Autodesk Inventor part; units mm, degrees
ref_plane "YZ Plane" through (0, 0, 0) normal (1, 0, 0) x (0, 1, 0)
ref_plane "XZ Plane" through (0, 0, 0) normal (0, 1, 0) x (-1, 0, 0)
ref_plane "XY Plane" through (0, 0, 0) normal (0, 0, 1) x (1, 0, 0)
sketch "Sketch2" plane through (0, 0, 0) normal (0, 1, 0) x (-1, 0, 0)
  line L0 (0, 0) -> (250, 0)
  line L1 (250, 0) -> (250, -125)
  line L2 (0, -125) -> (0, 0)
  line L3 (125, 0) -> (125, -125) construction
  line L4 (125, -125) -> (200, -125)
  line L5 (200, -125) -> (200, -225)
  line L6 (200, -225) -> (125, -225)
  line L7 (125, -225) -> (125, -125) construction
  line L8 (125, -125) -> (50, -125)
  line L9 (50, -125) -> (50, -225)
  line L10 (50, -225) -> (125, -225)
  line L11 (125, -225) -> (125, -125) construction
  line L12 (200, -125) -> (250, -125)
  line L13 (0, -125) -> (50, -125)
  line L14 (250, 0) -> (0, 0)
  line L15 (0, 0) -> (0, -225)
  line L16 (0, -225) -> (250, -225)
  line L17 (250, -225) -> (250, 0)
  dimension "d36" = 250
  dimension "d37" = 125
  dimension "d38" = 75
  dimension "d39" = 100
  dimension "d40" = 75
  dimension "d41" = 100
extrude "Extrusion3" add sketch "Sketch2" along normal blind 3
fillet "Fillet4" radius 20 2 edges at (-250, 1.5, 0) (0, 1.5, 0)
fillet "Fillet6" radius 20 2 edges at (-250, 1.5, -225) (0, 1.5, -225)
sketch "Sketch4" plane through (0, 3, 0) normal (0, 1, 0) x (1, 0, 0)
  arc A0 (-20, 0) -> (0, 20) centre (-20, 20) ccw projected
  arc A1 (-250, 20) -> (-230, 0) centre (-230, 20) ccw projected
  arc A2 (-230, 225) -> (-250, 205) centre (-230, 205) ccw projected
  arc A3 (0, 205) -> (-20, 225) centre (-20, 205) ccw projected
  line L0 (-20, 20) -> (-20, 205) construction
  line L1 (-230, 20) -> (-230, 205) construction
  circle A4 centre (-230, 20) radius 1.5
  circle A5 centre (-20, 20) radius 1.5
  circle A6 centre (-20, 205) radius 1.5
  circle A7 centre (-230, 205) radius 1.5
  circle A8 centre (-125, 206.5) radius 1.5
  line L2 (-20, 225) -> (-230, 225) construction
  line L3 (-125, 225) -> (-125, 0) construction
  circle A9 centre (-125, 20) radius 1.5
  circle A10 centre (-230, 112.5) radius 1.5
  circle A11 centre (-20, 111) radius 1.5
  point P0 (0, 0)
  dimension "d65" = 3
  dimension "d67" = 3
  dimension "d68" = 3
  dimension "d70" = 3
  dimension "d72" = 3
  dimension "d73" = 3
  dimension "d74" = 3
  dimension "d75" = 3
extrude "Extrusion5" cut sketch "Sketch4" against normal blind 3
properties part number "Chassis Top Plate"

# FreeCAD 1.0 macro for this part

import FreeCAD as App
import Part
import Sketcher


def edges_at(feature, points):
    """Names of the edges that pass closest to the given points."""
    edges = feature.Shape.Edges
    near = lambda p: min(range(len(edges)), key=lambda i: edges[i].distToShape(Part.Vertex(*p))[0])
    return sorted({f"Edge{near(p) + 1}" for p in points})

doc = App.newDocument("Part")
params = doc.addObject("Spreadsheet::Sheet", "Params")
for row, (alias, value) in enumerate([
    ("sketch1_width", "250 mm"),
    ("sketch1_height", "225 mm"),
    ("pad1_length", "3 mm"),
    ("fillet_radius", "20 mm"),
    ("fillet2_radius", "20 mm"),
    ("sketch2_diameter", "3 mm"),
    ("pocket1_length", "3 mm"),
], start=1):
    params.set(f"A{row}", alias)
    params.set(f"B{row}", "=" + value)
    params.setAlias(f"B{row}", alias)

body = doc.addObject("PartDesign::Body", "Body")

sketch1 = doc.addObject("Sketcher::SketchObject", "Sketch")
body.addObject(sketch1)
sketch1.AttachmentSupport = (doc.XZ_Plane, [""])
sketch1.MapMode = "FlatFace"
sketch1.addGeometry(Part.LineSegment(App.Vector(-250, 0, 0), App.Vector(0, 0, 0)), False)
sketch1.addGeometry(Part.LineSegment(App.Vector(0, 0, 0), App.Vector(0, -225, 0)), False)
sketch1.addGeometry(Part.LineSegment(App.Vector(0, -225, 0), App.Vector(-250, -225, 0)), False)
sketch1.addGeometry(Part.LineSegment(App.Vector(-250, -225, 0), App.Vector(-250, 0, 0)), False)
sketch1.addConstraint(Sketcher.Constraint("Coincident", 0, 2, 1, 1))
sketch1.addConstraint(Sketcher.Constraint("Coincident", 1, 2, 2, 1))
sketch1.addConstraint(Sketcher.Constraint("Coincident", 2, 2, 3, 1))
sketch1.addConstraint(Sketcher.Constraint("Coincident", 3, 2, 0, 1))
sketch1.addConstraint(Sketcher.Constraint("Horizontal", 0))
sketch1.addConstraint(Sketcher.Constraint("Vertical", 1))
sketch1.addConstraint(Sketcher.Constraint("Horizontal", 2))
sketch1.addConstraint(Sketcher.Constraint("Vertical", 3))
sketch1.addConstraint(Sketcher.Constraint("Coincident", 0, 2, -1, 1))
sketch1.addConstraint(Sketcher.Constraint("DistanceX", 0, 1, 0, 2, 250.0))
sketch1.addConstraint(Sketcher.Constraint("DistanceY", 1, 2, 1, 1, 225.0))
sketch1.setExpression("Constraints[9]", "Params.sketch1_width")
sketch1.setExpression("Constraints[10]", "Params.sketch1_height")
pad1 = doc.addObject("PartDesign::Pad", "Pad")
body.addObject(pad1)
pad1.Profile = sketch1
pad1.setExpression("Length", "Params.pad1_length")
pad1.Reversed = True
doc.recompute()

fillet = doc.addObject("PartDesign::Fillet", "Fillet")
body.addObject(fillet)
fillet.Base = (pad1, edges_at(pad1, [(-250, 1.5, 0), (0, 1.5, 0)]))
fillet.setExpression("Radius", "Params.fillet_radius")
doc.recompute()

fillet2 = doc.addObject("PartDesign::Fillet", "Fillet001")
body.addObject(fillet2)
fillet2.Base = (fillet, edges_at(fillet, [(-250, 1.5, -225), (0, 1.5, -225)]))
fillet2.setExpression("Radius", "Params.fillet2_radius")

sketch2 = doc.addObject("Sketcher::SketchObject", "Sketch001")
body.addObject(sketch2)
sketch2.AttachmentSupport = (doc.XZ_Plane, [""])
sketch2.MapMode = "FlatFace"
sketch2.AttachmentOffset = App.Placement(App.Vector(0, 0, -3), App.Rotation())
sketch2.addGeometry(Part.Circle(App.Vector(-230, -20, 0), App.Vector(0, 0, 1), 1.5), False)
sketch2.addGeometry(Part.Circle(App.Vector(-20, -20, 0), App.Vector(0, 0, 1), 1.5), False)
sketch2.addGeometry(Part.Circle(App.Vector(-20, -205, 0), App.Vector(0, 0, 1), 1.5), False)
sketch2.addGeometry(Part.Circle(App.Vector(-230, -205, 0), App.Vector(0, 0, 1), 1.5), False)
sketch2.addGeometry(Part.Circle(App.Vector(-125, -206.5, 0), App.Vector(0, 0, 1), 1.5), False)
sketch2.addGeometry(Part.Circle(App.Vector(-125, -20, 0), App.Vector(0, 0, 1), 1.5), False)
sketch2.addGeometry(Part.Circle(App.Vector(-230, -112.5, 0), App.Vector(0, 0, 1), 1.5), False)
sketch2.addGeometry(Part.Circle(App.Vector(-20, -111, 0), App.Vector(0, 0, 1), 1.5), False)
sketch2.addConstraint(Sketcher.Constraint("Equal", 0, 1))
sketch2.addConstraint(Sketcher.Constraint("Equal", 1, 2))
sketch2.addConstraint(Sketcher.Constraint("Equal", 2, 3))
sketch2.addConstraint(Sketcher.Constraint("Equal", 3, 4))
sketch2.addConstraint(Sketcher.Constraint("Equal", 4, 5))
sketch2.addConstraint(Sketcher.Constraint("Equal", 5, 6))
sketch2.addConstraint(Sketcher.Constraint("Equal", 6, 7))
sketch2.addConstraint(Sketcher.Constraint("Horizontal", 0, 3, 1, 3))
sketch2.addConstraint(Sketcher.Constraint("Horizontal", 2, 3, 3, 3))
sketch2.addConstraint(Sketcher.Constraint("Horizontal", 1, 3, 5, 3))
sketch2.addConstraint(Sketcher.Constraint("Vertical", 1, 3, 2, 3))
sketch2.addConstraint(Sketcher.Constraint("Vertical", 0, 3, 3, 3))
sketch2.addConstraint(Sketcher.Constraint("Vertical", 4, 3, 5, 3))
sketch2.addConstraint(Sketcher.Constraint("Vertical", 3, 3, 6, 3))
sketch2.addConstraint(Sketcher.Constraint("Vertical", 2, 3, 7, 3))
sketch2.addConstraint(Sketcher.Constraint("Diameter", 0, 3.0))
sketch2.addConstraint(Sketcher.Constraint("DistanceX", 0, 3, -1, 1, 230.0))
sketch2.addConstraint(Sketcher.Constraint("DistanceY", 0, 3, -1, 1, 20.0))
sketch2.addConstraint(Sketcher.Constraint("DistanceX", 1, 3, -1, 1, 20.0))
sketch2.addConstraint(Sketcher.Constraint("DistanceY", 2, 3, -1, 1, 205.0))
sketch2.addConstraint(Sketcher.Constraint("DistanceX", 4, 3, -1, 1, 125.0))
sketch2.addConstraint(Sketcher.Constraint("DistanceY", 7, 3, -1, 1, 111.0))
sketch2.addConstraint(Sketcher.Constraint("DistanceY", 4, 3, 6, 3, 94.0))
sketch2.addConstraint(Sketcher.Constraint("DistanceY", 4, 3, -1, 1, 206.5))
sketch2.setExpression("Constraints[15]", "Params.sketch2_diameter")
pocket1 = doc.addObject("PartDesign::Pocket", "Pocket")
body.addObject(pocket1)
pocket1.Profile = sketch2
pocket1.setExpression("Length", "Params.pocket1_length")
pocket1.Reversed = True

doc.recompute()
